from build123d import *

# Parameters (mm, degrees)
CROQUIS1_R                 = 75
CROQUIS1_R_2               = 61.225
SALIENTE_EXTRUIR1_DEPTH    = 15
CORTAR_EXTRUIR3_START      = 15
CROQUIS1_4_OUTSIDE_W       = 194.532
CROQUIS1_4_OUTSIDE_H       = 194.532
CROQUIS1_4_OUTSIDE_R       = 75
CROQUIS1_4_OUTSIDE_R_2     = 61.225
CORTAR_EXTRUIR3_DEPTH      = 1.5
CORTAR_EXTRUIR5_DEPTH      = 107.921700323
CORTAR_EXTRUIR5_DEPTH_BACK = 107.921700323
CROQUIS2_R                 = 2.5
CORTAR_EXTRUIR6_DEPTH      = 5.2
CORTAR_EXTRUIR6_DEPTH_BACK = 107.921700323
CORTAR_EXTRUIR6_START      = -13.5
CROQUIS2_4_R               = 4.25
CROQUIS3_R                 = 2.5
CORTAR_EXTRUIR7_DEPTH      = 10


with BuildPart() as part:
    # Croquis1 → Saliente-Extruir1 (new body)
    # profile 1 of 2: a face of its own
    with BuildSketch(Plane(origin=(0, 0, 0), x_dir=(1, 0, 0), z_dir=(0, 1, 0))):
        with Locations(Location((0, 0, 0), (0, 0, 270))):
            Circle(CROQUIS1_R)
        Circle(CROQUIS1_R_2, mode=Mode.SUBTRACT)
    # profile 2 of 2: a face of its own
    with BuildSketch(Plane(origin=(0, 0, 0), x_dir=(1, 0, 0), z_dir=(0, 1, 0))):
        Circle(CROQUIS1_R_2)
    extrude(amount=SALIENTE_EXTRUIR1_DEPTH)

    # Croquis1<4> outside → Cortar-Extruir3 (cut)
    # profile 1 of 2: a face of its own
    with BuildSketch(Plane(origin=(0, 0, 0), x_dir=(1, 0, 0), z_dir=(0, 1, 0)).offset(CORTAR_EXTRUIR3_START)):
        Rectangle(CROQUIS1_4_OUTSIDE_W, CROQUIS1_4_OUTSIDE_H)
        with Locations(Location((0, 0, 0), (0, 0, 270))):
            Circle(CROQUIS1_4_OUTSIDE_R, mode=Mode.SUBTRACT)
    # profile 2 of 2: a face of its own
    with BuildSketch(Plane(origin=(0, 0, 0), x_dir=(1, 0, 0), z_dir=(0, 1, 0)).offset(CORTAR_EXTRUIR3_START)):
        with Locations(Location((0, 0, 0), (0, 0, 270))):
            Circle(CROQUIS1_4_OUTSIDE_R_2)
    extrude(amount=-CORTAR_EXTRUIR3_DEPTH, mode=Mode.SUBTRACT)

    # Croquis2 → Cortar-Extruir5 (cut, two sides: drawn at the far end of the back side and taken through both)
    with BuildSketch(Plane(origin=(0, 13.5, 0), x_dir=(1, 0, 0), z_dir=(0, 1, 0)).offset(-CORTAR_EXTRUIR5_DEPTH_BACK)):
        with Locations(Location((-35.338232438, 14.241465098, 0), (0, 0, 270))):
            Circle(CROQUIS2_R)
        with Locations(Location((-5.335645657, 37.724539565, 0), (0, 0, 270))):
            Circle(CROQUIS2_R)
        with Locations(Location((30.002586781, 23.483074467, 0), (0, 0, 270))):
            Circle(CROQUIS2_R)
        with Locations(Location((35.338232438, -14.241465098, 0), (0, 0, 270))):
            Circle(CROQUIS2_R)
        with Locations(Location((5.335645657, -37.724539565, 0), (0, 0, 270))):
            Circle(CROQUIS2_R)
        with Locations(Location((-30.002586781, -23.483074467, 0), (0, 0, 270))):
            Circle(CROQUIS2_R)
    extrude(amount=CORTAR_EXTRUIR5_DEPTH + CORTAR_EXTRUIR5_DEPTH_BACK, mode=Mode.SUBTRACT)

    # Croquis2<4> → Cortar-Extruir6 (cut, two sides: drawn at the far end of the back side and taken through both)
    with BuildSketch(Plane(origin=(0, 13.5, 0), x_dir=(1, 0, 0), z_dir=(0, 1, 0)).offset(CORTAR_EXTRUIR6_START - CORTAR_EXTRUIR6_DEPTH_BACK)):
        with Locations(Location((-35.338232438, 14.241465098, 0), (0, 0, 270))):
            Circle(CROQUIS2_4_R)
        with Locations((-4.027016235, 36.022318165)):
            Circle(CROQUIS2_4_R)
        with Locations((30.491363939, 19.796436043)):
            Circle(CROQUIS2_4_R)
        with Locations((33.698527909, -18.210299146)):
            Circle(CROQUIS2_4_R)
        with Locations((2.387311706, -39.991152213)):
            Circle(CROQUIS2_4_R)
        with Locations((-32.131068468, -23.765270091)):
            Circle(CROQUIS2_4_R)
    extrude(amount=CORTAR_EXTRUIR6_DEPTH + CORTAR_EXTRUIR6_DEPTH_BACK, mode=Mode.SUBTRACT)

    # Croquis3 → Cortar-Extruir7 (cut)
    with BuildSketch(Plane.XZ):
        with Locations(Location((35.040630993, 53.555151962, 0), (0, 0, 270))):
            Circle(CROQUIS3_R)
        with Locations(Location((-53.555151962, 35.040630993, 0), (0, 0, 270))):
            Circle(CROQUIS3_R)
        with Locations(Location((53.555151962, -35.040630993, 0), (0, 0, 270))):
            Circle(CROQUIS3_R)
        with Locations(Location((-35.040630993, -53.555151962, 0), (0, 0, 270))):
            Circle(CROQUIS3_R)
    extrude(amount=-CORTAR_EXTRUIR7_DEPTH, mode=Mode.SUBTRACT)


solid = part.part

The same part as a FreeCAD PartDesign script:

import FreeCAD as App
import Part
import Sketcher

doc = App.newDocument("Part")
params = doc.addObject("Spreadsheet::Sheet", "Params")
for row, (alias, value) in enumerate([
    ("sketch1_diameter", "150 mm"),
    ("pad1_length", "15 mm"),
    ("sketch2_diameter", "150 mm"),
    ("sketch2_diameter2", "122.45 mm"),
    ("pocket1_length", "1.5 mm"),
    ("sketch3_diameter", "5 mm"),
    ("sketch4_diameter", "8.5 mm"),
    ("pocket3_length", "5.2 mm"),
    ("pocket3_length2", "107.9217 mm"),
    ("sketch5_diameter", "5 mm"),
    ("pocket4_length", "10 mm"),
], start=1):
    params.set(f"A{row}", alias)
    params.set(f"B{row}", "=" + value)
    params.setAlias(f"B{row}", alias)

body = doc.addObject("PartDesign::Body", "Body")

sketch1 = body.newObject("Sketcher::SketchObject", "Sketch")
sketch1.AttachmentSupport = (doc.getObject("XZ_Plane"), [""])
sketch1.MapMode = "FlatFace"
sketch1.addGeometry(Part.Circle(App.Vector(0, 0, 0), App.Vector(0, 0, 1), 75), False)
sketch1.addConstraint([
    Sketcher.Constraint("Coincident", 0, 3, -1, 1),
    Sketcher.Constraint("Diameter", 0, 150.0),
])
sketch1.setExpression("Constraints[1]", "Params.sketch1_diameter")
pad1 = body.newObject("PartDesign::Pad", "Pad")
pad1.Profile = sketch1
pad1.setExpression("Length", "Params.pad1_length")
pad1.Reversed = True

sketch2 = body.newObject("Sketcher::SketchObject", "Sketch001")
sketch2.AttachmentSupport = (doc.getObject("XZ_Plane"), [""])
sketch2.MapMode = "FlatFace"
sketch2.AttachmentOffset = App.Placement(App.Vector(0, 0, -15), App.Rotation())
sketch2.addGeometry([
    Part.LineSegment(App.Vector(-97, -97, 0), App.Vector(-97, 97, 0)),
    Part.LineSegment(App.Vector(-97, 97, 0), App.Vector(97, 97, 0)),
    Part.LineSegment(App.Vector(97, 97, 0), App.Vector(97, -97, 0)),
    Part.LineSegment(App.Vector(97, -97, 0), App.Vector(-97, -97, 0)),
    Part.Circle(App.Vector(0, 0, 0), App.Vector(0, 0, 1), 75),
    Part.Circle(App.Vector(0, 0, 0), App.Vector(0, 0, 1), 61),
], False)
sketch2.addConstraint([
    Sketcher.Constraint("Coincident", 0, 2, 1, 1),
    Sketcher.Constraint("Coincident", 1, 2, 2, 1),
    Sketcher.Constraint("Coincident", 2, 2, 3, 1),
    Sketcher.Constraint("Coincident", 3, 2, 0, 1),
    Sketcher.Constraint("Vertical", 0),
    Sketcher.Constraint("Horizontal", 1),
    Sketcher.Constraint("Vertical", 2),
    Sketcher.Constraint("Horizontal", 3),
    Sketcher.Constraint("Coincident", 4, 3, -1, 1),
    Sketcher.Constraint("Coincident", 5, 3, -1, 1),
    Sketcher.Constraint("Symmetric", 0, 2, 2, 2, -1, 1),
    Sketcher.Constraint("Equal", 3, 0),
    Sketcher.Constraint("Diameter", 4, 150.0),
    Sketcher.Constraint("Diameter", 5, 122.45),
    Sketcher.Constraint("DistanceX", 1, 1, 1, 2, 194.532),
])
sketch2.setExpression("Constraints[12]", "Params.sketch2_diameter")
sketch2.setExpression("Constraints[13]", "Params.sketch2_diameter2")
pocket1 = body.newObject("PartDesign::Pocket", "Pocket")
pocket1.Profile = sketch2
pocket1.setExpression("Length", "Params.pocket1_length")
pocket1.Reversed = True

sketch3 = body.newObject("Sketcher::SketchObject", "Sketch002")
sketch3.AttachmentSupport = (doc.getObject("XZ_Plane"), [""])
sketch3.MapMode = "FlatFace"
sketch3.AttachmentOffset = App.Placement(App.Vector(0, 0, -13.5), App.Rotation())
sketch3.addGeometry([
    Part.Circle(App.Vector(-35.3, -14.2, 0), App.Vector(0, 0, 1), 2.5),
    Part.Circle(App.Vector(-5.3, -37.7, 0), App.Vector(0, 0, 1), 2.5),
    Part.Circle(App.Vector(30, -23.5, 0), App.Vector(0, 0, 1), 2.5),
    Part.Circle(App.Vector(35.3, 14.2, 0), App.Vector(0, 0, 1), 2.5),
    Part.Circle(App.Vector(5.3, 37.7, 0), App.Vector(0, 0, 1), 2.5),
    Part.Circle(App.Vector(-30, 23.5, 0), App.Vector(0, 0, 1), 2.5),
], False)
sketch3.addConstraint([
    Sketcher.Constraint("Equal", 0, 1),
    Sketcher.Constraint("Equal", 1, 2),
    Sketcher.Constraint("Equal", 2, 3),
    Sketcher.Constraint("Equal", 3, 4),
    Sketcher.Constraint("Equal", 4, 5),
    Sketcher.Constraint("Symmetric", 0, 3, 3, 3, -1, 1),
    Sketcher.Constraint("Symmetric", 1, 3, 4, 3, -1, 1),
    Sketcher.Constraint("Symmetric", 2, 3, 5, 3, -1, 1),
    Sketcher.Constraint("Diameter", 0, 5.0),
    Sketcher.Constraint("DistanceY", 1, 3, -1, 1, 37.72454),
    Sketcher.Constraint("DistanceX", 0, 3, 2, 3, 65.340819),
    Sketcher.Constraint("DistanceY", 2, 3, 0, 3, 9.241609),
    Sketcher.Constraint("DistanceY", 2, 3, 3, 3, 37.72454),
    Sketcher.Constraint("DistanceX", 1, 3, 3, 3, 40.673878),
    Sketcher.Constraint("DistanceX", 1, 3, 4, 3, 10.671291),
])
sketch3.setExpression("Constraints[8]", "Params.sketch3_diameter")
pocket2 = body.newObject("PartDesign::Pocket", "Pocket001")
pocket2.Profile = sketch3
pocket2.Type = "ThroughAll"
pocket2.Midplane = True

sketch4 = body.newObject("Sketcher::SketchObject", "Sketch003")
sketch4.AttachmentSupport = (doc.getObject("XZ_Plane"), [""])
sketch4.MapMode = "FlatFace"
sketch4.addGeometry([
    Part.Circle(App.Vector(-35.3, -14.2, 0), App.Vector(0, 0, 1), 4.2),
    Part.Circle(App.Vector(-4, -36, 0), App.Vector(0, 0, 1), 4.2),
    Part.Circle(App.Vector(30.5, -19.8, 0), App.Vector(0, 0, 1), 4.2),
    Part.Circle(App.Vector(33.7, 18.2, 0), App.Vector(0, 0, 1), 4.2),
    Part.Circle(App.Vector(2.4, 40, 0), App.Vector(0, 0, 1), 4.2),
    Part.Circle(App.Vector(-32.1, 23.8, 0), App.Vector(0, 0, 1), 4.2),
], False)
sketch4.addConstraint([
    Sketcher.Constraint("Equal", 0, 1),
    Sketcher.Constraint("Equal", 1, 2),
    Sketcher.Constraint("Equal", 2, 3),
    Sketcher.Constraint("Equal", 3, 4),
    Sketcher.Constraint("Equal", 4, 5),
    Sketcher.Constraint("Diameter", 0, 8.5),
    Sketcher.Constraint("DistanceY", -1, 1, 3, 3, 18.210299),
    Sketcher.Constraint("DistanceY", 1, 3, -1, 1, 36.022318),
    Sketcher.Constraint("DistanceX", -1, 1, 4, 3, 2.387312),
    Sketcher.Constraint("DistanceX", 5, 3, -1, 1, 32.131068),
    Sketcher.Constraint("DistanceY", -1, 1, 5, 3, 23.76527),
    Sketcher.Constraint("DistanceX", 1, 3, 2, 3, 34.51838),
    Sketcher.Constraint("DistanceY", 2, 3, 0, 3, 5.554971),
    Sketcher.Constraint("DistanceX", 0, 3, 3, 3, 69.03676),
    Sketcher.Constraint("DistanceY", 2, 3, 4, 3, 59.787588),
    Sketcher.Constraint("DistanceY", 1, 3, 4, 3, 76.01347),
    Sketcher.Constraint("DistanceX", 0, 3, -1, 1, 35.338232),
    Sketcher.Constraint("DistanceX", 1, 3, -1, 1, 4.027016),
])
sketch4.setExpression("Constraints[5]", "Params.sketch4_diameter")
pocket3 = body.newObject("PartDesign::Pocket", "Pocket002")
pocket3.Profile = sketch4
pocket3.Type = "TwoLengths"
pocket3.setExpression("Length", "Params.pocket3_length")
pocket3.setExpression("Length2", "Params.pocket3_length2")

sketch5 = body.newObject("Sketcher::SketchObject", "Sketch004")
sketch5.AttachmentSupport = (doc.getObject("XZ_Plane"), [""])
sketch5.MapMode = "FlatFace"
sketch5.addGeometry([
    Part.Circle(App.Vector(35, 53.6, 0), App.Vector(0, 0, 1), 2.5),
    Part.Circle(App.Vector(-53.6, 35, 0), App.Vector(0, 0, 1), 2.5),
    Part.Circle(App.Vector(53.6, -35, 0), App.Vector(0, 0, 1), 2.5),
    Part.Circle(App.Vector(-35, -53.6, 0), App.Vector(0, 0, 1), 2.5),
], False)
sketch5.addConstraint([
    Sketcher.Constraint("Equal", 0, 1),
    Sketcher.Constraint("Equal", 1, 2),
    Sketcher.Constraint("Equal", 2, 3),
    Sketcher.Constraint("Symmetric", 1, 3, 2, 3, -1, 1),
    Sketcher.Constraint("Symmetric", 0, 3, 3, 3, -1, 1),
    Sketcher.Constraint("Diameter", 0, 5.0),
    Sketcher.Constraint("DistanceX", -1, 1, 0, 3, 35.040631),
    Sketcher.Constraint("DistanceY", -1, 1, 0, 3, 53.555152),
    Sketcher.Constraint("DistanceX", 1, 3, -1, 1, 53.555152),
    Sketcher.Constraint("DistanceY", -1, 1, 1, 3, 35.040631),
])
sketch5.setExpression("Constraints[5]", "Params.sketch5_diameter")
pocket4 = body.newObject("PartDesign::Pocket", "Pocket003")
pocket4.Profile = sketch5
pocket4.setExpression("Length", "Params.pocket4_length")

doc.recompute()
